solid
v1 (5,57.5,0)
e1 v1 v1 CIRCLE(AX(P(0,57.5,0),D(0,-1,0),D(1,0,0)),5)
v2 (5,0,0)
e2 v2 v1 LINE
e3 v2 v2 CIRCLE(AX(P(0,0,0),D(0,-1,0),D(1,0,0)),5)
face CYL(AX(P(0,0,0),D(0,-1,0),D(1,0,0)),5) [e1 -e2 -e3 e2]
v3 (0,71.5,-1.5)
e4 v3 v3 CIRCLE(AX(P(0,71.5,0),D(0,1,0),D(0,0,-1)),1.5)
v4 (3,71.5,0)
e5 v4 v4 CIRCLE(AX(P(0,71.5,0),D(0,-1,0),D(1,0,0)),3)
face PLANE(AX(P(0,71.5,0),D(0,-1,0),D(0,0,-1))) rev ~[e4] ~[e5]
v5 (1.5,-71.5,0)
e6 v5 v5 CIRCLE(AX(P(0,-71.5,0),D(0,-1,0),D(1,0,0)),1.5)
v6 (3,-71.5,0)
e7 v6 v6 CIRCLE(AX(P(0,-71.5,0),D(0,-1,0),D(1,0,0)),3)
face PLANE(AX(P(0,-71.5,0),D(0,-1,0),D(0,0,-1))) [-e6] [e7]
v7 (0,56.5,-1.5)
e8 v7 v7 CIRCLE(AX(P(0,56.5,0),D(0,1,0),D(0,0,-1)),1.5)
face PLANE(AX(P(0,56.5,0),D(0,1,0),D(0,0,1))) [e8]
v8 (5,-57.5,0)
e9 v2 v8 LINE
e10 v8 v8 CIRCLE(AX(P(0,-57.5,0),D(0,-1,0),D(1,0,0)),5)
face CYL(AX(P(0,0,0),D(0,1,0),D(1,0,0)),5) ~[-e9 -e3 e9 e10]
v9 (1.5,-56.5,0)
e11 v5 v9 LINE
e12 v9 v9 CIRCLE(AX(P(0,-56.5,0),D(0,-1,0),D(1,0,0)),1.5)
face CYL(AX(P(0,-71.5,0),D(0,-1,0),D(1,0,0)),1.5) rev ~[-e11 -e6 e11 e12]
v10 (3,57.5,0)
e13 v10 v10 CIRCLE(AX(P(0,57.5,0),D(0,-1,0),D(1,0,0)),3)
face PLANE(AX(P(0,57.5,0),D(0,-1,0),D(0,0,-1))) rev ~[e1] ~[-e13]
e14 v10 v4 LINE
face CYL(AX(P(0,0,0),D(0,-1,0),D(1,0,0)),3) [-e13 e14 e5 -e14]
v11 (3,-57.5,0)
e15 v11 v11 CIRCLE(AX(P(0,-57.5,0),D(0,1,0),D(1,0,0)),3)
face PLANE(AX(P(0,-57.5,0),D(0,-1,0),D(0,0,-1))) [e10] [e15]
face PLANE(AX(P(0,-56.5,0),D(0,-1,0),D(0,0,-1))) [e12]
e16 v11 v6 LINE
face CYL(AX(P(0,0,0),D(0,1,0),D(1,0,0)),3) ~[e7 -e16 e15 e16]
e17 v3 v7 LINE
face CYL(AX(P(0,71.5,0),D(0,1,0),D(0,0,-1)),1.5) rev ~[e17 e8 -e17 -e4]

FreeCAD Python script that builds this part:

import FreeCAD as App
import Part
import Sketcher

V = App.Vector

doc = App.newDocument("Part")
body = doc.addObject("PartDesign::Body", "Body")

# Sketch on XZ plane
sketch1 = body.newObject("Sketcher::SketchObject", "Sketch")
sketch1.AttachmentSupport = (doc.getObject("XZ_Plane"), [""])
sketch1.MapMode = "FlatFace"
sketch1.addGeometry(Part.Circle(V(0, 0, 0), V(0, 0, 1), 5), False)
sketch1.addConstraint([
    Sketcher.Constraint("Coincident", 0, 3, -1, 1),
    Sketcher.Constraint("Diameter", 0, 10.0),
])
pad1 = body.newObject("PartDesign::Pad", "Pad")
pad1.Profile = sketch1
pad1.Length = 115
pad1.Midplane = True

# Sketch on XZ plane
sketch2 = body.newObject("Sketcher::SketchObject", "Sketch001")
sketch2.AttachmentSupport = (doc.getObject("XZ_Plane"), [""])
sketch2.MapMode = "FlatFace"
sketch2.addGeometry(Part.Circle(V(0, 0, 0), V(0, 0, 1), 3), False)
sketch2.addConstraint([
    Sketcher.Constraint("Coincident", 0, 3, -1, 1),
    Sketcher.Constraint("Diameter", 0, 6.0),
])
pad2 = body.newObject("PartDesign::Pad", "Pad001")
pad2.Profile = sketch2
pad2.Length = 143
pad2.Midplane = True

# Sketch on XZ plane
sketch3 = body.newObject("Sketcher::SketchObject", "Sketch002")
sketch3.AttachmentSupport = (doc.getObject("XZ_Plane"), [""])
sketch3.MapMode = "FlatFace"
sketch3.AttachmentOffset = App.Placement(V(0, 0, 71.5), App.Rotation())
sketch3.addGeometry(Part.Circle(V(0, 0, 0), V(0, 0, 1), 1.5), False)
sketch3.addConstraint([
    Sketcher.Constraint("Coincident", 0, 3, -1, 1),
    Sketcher.Constraint("Diameter", 0, 3.0),
])
pocket1 = body.newObject("PartDesign::Pocket", "Pocket")
pocket1.Profile = sketch3
pocket1.Length = 15

# Sketch on XZ plane
sketch4 = body.newObject("Sketcher::SketchObject", "Sketch003")
sketch4.AttachmentSupport = (doc.getObject("XZ_Plane"), [""])
sketch4.MapMode = "FlatFace"
sketch4.AttachmentOffset = App.Placement(V(0, 0, -71.5), App.Rotation())
sketch4.addGeometry(Part.Circle(V(0, 0, 0), V(0, 0, 1), 1.5), False)
sketch4.addConstraint([
    Sketcher.Constraint("Coincident", 0, 3, -1, 1),
    Sketcher.Constraint("Diameter", 0, 3.0),
])
pocket2 = body.newObject("PartDesign::Pocket", "Pocket001")
pocket2.Profile = sketch4
pocket2.Length = 15
pocket2.Reversed = True

doc.recompute()
